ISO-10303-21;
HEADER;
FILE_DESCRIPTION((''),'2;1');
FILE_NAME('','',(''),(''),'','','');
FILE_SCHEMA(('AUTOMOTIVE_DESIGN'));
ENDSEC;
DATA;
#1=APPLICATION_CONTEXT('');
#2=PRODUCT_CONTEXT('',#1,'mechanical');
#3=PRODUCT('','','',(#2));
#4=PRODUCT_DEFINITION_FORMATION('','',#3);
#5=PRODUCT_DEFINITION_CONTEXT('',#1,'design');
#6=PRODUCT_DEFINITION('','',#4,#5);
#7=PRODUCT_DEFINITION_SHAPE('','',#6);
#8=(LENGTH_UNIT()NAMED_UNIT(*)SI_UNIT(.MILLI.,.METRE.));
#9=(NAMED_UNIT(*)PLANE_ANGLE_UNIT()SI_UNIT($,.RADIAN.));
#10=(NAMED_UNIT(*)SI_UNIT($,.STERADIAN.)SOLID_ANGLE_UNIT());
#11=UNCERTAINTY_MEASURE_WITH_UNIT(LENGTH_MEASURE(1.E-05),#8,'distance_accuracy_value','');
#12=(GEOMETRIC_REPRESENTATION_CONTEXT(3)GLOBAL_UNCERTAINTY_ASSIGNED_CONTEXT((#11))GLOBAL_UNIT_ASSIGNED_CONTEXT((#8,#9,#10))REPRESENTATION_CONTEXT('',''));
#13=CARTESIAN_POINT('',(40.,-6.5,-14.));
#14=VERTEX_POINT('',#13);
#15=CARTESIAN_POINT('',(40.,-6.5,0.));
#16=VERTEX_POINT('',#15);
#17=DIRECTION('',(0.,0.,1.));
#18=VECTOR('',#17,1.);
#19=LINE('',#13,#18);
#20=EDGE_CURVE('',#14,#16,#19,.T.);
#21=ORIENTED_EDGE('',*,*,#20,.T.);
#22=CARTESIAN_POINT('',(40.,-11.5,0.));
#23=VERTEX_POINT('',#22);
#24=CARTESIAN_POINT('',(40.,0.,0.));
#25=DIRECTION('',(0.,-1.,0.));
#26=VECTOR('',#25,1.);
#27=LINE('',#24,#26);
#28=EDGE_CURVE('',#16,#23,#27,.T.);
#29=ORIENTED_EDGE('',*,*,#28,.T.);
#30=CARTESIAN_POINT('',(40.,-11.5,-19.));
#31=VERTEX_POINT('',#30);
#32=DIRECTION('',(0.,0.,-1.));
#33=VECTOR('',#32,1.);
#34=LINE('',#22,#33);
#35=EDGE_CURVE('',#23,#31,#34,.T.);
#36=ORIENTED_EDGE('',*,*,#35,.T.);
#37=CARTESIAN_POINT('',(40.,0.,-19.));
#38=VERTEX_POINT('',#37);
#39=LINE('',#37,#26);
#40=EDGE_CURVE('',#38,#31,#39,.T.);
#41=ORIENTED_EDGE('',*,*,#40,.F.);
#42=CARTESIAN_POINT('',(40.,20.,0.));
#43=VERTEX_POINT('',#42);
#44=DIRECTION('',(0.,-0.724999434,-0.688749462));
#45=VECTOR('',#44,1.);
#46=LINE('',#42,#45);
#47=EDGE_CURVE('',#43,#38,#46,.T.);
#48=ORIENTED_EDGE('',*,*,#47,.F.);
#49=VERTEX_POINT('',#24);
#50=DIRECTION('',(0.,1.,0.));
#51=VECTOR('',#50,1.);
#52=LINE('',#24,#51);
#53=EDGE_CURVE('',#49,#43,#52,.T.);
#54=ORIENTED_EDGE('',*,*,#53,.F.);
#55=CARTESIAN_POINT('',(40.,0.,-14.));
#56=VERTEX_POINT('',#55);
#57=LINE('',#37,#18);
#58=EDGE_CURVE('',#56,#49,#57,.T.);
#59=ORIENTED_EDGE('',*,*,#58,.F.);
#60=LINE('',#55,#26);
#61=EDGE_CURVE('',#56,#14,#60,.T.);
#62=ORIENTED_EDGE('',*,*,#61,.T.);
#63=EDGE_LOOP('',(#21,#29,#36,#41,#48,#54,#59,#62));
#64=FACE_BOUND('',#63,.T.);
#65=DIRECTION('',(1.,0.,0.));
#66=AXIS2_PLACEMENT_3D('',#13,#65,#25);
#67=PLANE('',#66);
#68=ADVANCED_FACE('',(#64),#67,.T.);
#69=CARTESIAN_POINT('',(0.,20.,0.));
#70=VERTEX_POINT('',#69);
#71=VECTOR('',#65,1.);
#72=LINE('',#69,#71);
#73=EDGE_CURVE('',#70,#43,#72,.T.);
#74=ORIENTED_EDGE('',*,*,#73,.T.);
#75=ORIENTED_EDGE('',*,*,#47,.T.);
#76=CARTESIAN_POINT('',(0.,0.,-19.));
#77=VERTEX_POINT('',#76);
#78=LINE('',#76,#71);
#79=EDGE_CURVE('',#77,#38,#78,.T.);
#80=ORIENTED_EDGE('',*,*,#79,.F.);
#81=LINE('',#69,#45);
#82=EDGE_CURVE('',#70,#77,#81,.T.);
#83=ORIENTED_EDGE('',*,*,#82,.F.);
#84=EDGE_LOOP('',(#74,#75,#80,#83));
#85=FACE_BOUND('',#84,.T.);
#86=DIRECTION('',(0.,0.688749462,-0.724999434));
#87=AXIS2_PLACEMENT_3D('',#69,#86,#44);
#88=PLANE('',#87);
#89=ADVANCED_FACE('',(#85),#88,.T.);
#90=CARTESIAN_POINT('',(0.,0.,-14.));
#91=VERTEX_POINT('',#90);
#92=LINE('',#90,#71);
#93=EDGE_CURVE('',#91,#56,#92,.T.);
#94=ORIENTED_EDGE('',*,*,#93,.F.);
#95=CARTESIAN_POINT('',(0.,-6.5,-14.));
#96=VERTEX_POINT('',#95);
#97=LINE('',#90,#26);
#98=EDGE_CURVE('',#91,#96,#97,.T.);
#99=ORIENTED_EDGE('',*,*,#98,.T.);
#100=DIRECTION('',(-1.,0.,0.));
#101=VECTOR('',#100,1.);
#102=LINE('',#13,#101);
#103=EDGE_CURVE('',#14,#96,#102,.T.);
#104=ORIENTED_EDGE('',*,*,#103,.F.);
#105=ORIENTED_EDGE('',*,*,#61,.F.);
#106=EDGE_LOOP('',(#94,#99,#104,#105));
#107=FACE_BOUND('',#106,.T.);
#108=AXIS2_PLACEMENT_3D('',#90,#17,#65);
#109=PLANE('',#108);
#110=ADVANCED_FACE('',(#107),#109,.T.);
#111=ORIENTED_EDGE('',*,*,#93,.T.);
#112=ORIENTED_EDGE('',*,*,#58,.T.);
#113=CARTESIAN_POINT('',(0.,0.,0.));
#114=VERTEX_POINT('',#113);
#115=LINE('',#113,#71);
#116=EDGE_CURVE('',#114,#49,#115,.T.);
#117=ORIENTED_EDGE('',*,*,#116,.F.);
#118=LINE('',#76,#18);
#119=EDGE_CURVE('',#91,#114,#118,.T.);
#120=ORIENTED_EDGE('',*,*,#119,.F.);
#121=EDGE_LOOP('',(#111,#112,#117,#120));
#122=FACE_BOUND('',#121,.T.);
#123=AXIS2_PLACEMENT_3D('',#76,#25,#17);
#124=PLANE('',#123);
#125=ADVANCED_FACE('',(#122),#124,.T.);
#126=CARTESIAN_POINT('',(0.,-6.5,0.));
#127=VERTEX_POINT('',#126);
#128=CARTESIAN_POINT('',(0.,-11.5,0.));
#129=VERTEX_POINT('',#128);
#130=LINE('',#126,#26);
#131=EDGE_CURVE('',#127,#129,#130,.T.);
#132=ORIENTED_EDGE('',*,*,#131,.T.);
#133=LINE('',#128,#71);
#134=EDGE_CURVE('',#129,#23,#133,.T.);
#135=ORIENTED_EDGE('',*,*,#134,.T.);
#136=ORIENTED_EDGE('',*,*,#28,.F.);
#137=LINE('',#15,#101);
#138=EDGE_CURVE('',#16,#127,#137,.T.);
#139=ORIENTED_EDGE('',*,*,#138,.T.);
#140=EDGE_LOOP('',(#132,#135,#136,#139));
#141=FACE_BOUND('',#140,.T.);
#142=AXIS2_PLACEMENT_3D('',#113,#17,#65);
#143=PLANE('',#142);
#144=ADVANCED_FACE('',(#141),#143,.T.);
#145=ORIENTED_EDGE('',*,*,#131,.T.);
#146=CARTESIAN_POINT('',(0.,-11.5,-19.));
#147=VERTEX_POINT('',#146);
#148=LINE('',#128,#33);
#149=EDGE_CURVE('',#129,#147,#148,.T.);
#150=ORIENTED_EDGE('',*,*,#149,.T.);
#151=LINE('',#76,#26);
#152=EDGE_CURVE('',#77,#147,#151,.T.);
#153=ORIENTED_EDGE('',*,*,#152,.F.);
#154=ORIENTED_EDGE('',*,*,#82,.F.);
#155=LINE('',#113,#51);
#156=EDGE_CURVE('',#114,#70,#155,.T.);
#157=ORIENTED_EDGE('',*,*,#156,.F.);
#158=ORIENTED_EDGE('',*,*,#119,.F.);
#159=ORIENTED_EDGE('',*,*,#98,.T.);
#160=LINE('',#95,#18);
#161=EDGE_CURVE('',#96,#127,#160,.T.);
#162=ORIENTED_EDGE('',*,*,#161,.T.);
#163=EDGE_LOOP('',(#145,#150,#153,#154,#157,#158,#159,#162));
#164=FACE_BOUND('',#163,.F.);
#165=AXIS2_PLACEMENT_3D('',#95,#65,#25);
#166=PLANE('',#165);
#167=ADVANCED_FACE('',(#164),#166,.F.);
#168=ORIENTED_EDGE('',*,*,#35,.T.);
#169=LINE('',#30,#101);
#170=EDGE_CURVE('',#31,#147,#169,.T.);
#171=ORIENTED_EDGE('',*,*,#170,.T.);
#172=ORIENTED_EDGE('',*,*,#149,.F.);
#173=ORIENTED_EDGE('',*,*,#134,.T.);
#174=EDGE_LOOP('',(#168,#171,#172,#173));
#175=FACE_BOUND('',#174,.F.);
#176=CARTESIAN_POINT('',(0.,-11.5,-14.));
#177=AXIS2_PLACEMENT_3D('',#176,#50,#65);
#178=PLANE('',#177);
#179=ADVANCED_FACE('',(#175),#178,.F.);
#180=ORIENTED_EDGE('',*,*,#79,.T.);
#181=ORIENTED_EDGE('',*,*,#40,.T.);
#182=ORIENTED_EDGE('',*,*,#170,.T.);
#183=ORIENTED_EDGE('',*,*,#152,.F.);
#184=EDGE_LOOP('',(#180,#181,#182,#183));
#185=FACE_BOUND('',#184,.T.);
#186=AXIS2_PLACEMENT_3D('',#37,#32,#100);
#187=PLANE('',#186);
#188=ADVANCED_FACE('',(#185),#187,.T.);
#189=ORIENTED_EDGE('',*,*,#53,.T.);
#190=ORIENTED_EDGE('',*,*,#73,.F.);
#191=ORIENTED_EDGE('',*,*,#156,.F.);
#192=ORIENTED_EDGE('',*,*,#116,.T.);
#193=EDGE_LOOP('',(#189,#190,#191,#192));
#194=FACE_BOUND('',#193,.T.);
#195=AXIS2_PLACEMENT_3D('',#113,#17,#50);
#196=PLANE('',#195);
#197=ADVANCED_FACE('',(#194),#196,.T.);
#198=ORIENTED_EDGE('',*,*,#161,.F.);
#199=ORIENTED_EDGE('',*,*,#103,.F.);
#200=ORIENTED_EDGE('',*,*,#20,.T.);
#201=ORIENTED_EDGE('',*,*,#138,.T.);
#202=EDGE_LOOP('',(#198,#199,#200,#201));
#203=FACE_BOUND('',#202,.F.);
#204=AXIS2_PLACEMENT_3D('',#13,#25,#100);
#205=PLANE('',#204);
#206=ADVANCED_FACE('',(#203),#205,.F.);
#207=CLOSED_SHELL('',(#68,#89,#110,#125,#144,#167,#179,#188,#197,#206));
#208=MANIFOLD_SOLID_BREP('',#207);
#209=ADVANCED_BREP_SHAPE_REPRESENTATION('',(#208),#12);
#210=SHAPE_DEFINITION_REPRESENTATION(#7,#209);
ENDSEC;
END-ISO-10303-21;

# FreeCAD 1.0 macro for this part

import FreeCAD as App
import Part
import Sketcher

V = App.Vector
Q = App.Units.Quantity

doc = App.newDocument("Part")
body = doc.addObject("PartDesign::Body", "Body")

sketch1 = body.newObject("Sketcher::SketchObject", "Sketch")
sketch1.AttachmentSupport = (doc.getObject("YZ_Plane"), [""])
sketch1.MapMode = "FlatFace"
sketch1.addGeometry([
    Part.LineSegment(V(20, 0, 0), V(0, 0, 0)),
    Part.LineSegment(V(0, 0, 0), V(0, -19, 0)),
    Part.LineSegment(V(0, -19, 0), V(20, 0, 0)),
], False)
sketch1.addConstraint([
    Sketcher.Constraint("Coincident", 0, 2, 1, 1),
    Sketcher.Constraint("Coincident", 1, 2, 2, 1),
    Sketcher.Constraint("Coincident", 2, 2, 0, 1),
    Sketcher.Constraint("Horizontal", 0),
    Sketcher.Constraint("Vertical", 1),
    Sketcher.Constraint("Coincident", 0, 2, -1, 1),
    Sketcher.Constraint("DistanceX", 0, 2, 0, 1, Q("20 mm")),
    Sketcher.Constraint("DistanceY", 1, 2, 1, 1, Q("19 mm")),
])
pad1 = body.newObject("PartDesign::Pad", "Pad")
pad1.Profile = sketch1
pad1.Length = 40

sketch2 = body.newObject("Sketcher::SketchObject", "Sketch001")
sketch2.AttachmentSupport = (doc.getObject("XZ_Plane"), [""])
sketch2.MapMode = "FlatFace"
sketch2.addGeometry([
    Part.LineSegment(V(40, -19, 0), V(40, -14, 0)),
    Part.LineSegment(V(40, -14, 0), V(0, -14, 0)),
    Part.LineSegment(V(0, -14, 0), V(0, -19, 0)),
    Part.LineSegment(V(0, -19, 0), V(40, -19, 0)),
], False)
sketch2.addConstraint([
    Sketcher.Constraint("Coincident", 0, 2, 1, 1),
    Sketcher.Constraint("Coincident", 1, 2, 2, 1),
    Sketcher.Constraint("Coincident", 2, 2, 3, 1),
    Sketcher.Constraint("Coincident", 3, 2, 0, 1),
    Sketcher.Constraint("Vertical", 0),
    Sketcher.Constraint("Horizontal", 1),
    Sketcher.Constraint("Vertical", 2),
    Sketcher.Constraint("Horizontal", 3),
    Sketcher.Constraint("PointOnObject", 1, 2, -2),
    Sketcher.Constraint("DistanceY", 0, 1, 0, 2, Q("5 mm")),
    Sketcher.Constraint("DistanceX", 1, 2, 1, 1, Q("40 mm")),
    Sketcher.Constraint("DistanceY", 0, 2, -1, 1, Q("14 mm")),
])
pad2 = body.newObject("PartDesign::Pad", "Pad001")
pad2.Profile = sketch2
pad2.Length = 11.5

sketch3 = body.newObject("Sketcher::SketchObject", "Sketch002")
sketch3.AttachmentSupport = (doc.getObject("XY_Plane"), [""])
sketch3.MapMode = "FlatFace"
sketch3.AttachmentOffset = App.Placement(V(0, 0, -14), App.Rotation())
sketch3.addGeometry([
    Part.LineSegment(V(40, -12, 0), V(40, -6, 0)),
    Part.LineSegment(V(40, -6, 0), V(0, -6, 0)),
    Part.LineSegment(V(0, -6, 0), V(0, -12, 0)),
    Part.LineSegment(V(0, -12, 0), V(40, -12, 0)),
], False)
sketch3.addConstraint([
    Sketcher.Constraint("Coincident", 0, 2, 1, 1),
    Sketcher.Constraint("Coincident", 1, 2, 2, 1),
    Sketcher.Constraint("Coincident", 2, 2, 3, 1),
    Sketcher.Constraint("Coincident", 3, 2, 0, 1),
    Sketcher.Constraint("Vertical", 0),
    Sketcher.Constraint("Horizontal", 1),
    Sketcher.Constraint("Vertical", 2),
    Sketcher.Constraint("Horizontal", 3),
    Sketcher.Constraint("PointOnObject", 1, 2, -2),
    Sketcher.Constraint("DistanceY", 0, 1, 0, 2, Q("5 mm")),
    Sketcher.Constraint("DistanceX", 1, 2, 1, 1, Q("40 mm")),
    Sketcher.Constraint("DistanceY", 0, 2, -1, 1, Q("6.5 mm")),
])
pad3 = body.newObject("PartDesign::Pad", "Pad002")
pad3.Profile = sketch3
pad3.Length = 14

doc.recompute()
